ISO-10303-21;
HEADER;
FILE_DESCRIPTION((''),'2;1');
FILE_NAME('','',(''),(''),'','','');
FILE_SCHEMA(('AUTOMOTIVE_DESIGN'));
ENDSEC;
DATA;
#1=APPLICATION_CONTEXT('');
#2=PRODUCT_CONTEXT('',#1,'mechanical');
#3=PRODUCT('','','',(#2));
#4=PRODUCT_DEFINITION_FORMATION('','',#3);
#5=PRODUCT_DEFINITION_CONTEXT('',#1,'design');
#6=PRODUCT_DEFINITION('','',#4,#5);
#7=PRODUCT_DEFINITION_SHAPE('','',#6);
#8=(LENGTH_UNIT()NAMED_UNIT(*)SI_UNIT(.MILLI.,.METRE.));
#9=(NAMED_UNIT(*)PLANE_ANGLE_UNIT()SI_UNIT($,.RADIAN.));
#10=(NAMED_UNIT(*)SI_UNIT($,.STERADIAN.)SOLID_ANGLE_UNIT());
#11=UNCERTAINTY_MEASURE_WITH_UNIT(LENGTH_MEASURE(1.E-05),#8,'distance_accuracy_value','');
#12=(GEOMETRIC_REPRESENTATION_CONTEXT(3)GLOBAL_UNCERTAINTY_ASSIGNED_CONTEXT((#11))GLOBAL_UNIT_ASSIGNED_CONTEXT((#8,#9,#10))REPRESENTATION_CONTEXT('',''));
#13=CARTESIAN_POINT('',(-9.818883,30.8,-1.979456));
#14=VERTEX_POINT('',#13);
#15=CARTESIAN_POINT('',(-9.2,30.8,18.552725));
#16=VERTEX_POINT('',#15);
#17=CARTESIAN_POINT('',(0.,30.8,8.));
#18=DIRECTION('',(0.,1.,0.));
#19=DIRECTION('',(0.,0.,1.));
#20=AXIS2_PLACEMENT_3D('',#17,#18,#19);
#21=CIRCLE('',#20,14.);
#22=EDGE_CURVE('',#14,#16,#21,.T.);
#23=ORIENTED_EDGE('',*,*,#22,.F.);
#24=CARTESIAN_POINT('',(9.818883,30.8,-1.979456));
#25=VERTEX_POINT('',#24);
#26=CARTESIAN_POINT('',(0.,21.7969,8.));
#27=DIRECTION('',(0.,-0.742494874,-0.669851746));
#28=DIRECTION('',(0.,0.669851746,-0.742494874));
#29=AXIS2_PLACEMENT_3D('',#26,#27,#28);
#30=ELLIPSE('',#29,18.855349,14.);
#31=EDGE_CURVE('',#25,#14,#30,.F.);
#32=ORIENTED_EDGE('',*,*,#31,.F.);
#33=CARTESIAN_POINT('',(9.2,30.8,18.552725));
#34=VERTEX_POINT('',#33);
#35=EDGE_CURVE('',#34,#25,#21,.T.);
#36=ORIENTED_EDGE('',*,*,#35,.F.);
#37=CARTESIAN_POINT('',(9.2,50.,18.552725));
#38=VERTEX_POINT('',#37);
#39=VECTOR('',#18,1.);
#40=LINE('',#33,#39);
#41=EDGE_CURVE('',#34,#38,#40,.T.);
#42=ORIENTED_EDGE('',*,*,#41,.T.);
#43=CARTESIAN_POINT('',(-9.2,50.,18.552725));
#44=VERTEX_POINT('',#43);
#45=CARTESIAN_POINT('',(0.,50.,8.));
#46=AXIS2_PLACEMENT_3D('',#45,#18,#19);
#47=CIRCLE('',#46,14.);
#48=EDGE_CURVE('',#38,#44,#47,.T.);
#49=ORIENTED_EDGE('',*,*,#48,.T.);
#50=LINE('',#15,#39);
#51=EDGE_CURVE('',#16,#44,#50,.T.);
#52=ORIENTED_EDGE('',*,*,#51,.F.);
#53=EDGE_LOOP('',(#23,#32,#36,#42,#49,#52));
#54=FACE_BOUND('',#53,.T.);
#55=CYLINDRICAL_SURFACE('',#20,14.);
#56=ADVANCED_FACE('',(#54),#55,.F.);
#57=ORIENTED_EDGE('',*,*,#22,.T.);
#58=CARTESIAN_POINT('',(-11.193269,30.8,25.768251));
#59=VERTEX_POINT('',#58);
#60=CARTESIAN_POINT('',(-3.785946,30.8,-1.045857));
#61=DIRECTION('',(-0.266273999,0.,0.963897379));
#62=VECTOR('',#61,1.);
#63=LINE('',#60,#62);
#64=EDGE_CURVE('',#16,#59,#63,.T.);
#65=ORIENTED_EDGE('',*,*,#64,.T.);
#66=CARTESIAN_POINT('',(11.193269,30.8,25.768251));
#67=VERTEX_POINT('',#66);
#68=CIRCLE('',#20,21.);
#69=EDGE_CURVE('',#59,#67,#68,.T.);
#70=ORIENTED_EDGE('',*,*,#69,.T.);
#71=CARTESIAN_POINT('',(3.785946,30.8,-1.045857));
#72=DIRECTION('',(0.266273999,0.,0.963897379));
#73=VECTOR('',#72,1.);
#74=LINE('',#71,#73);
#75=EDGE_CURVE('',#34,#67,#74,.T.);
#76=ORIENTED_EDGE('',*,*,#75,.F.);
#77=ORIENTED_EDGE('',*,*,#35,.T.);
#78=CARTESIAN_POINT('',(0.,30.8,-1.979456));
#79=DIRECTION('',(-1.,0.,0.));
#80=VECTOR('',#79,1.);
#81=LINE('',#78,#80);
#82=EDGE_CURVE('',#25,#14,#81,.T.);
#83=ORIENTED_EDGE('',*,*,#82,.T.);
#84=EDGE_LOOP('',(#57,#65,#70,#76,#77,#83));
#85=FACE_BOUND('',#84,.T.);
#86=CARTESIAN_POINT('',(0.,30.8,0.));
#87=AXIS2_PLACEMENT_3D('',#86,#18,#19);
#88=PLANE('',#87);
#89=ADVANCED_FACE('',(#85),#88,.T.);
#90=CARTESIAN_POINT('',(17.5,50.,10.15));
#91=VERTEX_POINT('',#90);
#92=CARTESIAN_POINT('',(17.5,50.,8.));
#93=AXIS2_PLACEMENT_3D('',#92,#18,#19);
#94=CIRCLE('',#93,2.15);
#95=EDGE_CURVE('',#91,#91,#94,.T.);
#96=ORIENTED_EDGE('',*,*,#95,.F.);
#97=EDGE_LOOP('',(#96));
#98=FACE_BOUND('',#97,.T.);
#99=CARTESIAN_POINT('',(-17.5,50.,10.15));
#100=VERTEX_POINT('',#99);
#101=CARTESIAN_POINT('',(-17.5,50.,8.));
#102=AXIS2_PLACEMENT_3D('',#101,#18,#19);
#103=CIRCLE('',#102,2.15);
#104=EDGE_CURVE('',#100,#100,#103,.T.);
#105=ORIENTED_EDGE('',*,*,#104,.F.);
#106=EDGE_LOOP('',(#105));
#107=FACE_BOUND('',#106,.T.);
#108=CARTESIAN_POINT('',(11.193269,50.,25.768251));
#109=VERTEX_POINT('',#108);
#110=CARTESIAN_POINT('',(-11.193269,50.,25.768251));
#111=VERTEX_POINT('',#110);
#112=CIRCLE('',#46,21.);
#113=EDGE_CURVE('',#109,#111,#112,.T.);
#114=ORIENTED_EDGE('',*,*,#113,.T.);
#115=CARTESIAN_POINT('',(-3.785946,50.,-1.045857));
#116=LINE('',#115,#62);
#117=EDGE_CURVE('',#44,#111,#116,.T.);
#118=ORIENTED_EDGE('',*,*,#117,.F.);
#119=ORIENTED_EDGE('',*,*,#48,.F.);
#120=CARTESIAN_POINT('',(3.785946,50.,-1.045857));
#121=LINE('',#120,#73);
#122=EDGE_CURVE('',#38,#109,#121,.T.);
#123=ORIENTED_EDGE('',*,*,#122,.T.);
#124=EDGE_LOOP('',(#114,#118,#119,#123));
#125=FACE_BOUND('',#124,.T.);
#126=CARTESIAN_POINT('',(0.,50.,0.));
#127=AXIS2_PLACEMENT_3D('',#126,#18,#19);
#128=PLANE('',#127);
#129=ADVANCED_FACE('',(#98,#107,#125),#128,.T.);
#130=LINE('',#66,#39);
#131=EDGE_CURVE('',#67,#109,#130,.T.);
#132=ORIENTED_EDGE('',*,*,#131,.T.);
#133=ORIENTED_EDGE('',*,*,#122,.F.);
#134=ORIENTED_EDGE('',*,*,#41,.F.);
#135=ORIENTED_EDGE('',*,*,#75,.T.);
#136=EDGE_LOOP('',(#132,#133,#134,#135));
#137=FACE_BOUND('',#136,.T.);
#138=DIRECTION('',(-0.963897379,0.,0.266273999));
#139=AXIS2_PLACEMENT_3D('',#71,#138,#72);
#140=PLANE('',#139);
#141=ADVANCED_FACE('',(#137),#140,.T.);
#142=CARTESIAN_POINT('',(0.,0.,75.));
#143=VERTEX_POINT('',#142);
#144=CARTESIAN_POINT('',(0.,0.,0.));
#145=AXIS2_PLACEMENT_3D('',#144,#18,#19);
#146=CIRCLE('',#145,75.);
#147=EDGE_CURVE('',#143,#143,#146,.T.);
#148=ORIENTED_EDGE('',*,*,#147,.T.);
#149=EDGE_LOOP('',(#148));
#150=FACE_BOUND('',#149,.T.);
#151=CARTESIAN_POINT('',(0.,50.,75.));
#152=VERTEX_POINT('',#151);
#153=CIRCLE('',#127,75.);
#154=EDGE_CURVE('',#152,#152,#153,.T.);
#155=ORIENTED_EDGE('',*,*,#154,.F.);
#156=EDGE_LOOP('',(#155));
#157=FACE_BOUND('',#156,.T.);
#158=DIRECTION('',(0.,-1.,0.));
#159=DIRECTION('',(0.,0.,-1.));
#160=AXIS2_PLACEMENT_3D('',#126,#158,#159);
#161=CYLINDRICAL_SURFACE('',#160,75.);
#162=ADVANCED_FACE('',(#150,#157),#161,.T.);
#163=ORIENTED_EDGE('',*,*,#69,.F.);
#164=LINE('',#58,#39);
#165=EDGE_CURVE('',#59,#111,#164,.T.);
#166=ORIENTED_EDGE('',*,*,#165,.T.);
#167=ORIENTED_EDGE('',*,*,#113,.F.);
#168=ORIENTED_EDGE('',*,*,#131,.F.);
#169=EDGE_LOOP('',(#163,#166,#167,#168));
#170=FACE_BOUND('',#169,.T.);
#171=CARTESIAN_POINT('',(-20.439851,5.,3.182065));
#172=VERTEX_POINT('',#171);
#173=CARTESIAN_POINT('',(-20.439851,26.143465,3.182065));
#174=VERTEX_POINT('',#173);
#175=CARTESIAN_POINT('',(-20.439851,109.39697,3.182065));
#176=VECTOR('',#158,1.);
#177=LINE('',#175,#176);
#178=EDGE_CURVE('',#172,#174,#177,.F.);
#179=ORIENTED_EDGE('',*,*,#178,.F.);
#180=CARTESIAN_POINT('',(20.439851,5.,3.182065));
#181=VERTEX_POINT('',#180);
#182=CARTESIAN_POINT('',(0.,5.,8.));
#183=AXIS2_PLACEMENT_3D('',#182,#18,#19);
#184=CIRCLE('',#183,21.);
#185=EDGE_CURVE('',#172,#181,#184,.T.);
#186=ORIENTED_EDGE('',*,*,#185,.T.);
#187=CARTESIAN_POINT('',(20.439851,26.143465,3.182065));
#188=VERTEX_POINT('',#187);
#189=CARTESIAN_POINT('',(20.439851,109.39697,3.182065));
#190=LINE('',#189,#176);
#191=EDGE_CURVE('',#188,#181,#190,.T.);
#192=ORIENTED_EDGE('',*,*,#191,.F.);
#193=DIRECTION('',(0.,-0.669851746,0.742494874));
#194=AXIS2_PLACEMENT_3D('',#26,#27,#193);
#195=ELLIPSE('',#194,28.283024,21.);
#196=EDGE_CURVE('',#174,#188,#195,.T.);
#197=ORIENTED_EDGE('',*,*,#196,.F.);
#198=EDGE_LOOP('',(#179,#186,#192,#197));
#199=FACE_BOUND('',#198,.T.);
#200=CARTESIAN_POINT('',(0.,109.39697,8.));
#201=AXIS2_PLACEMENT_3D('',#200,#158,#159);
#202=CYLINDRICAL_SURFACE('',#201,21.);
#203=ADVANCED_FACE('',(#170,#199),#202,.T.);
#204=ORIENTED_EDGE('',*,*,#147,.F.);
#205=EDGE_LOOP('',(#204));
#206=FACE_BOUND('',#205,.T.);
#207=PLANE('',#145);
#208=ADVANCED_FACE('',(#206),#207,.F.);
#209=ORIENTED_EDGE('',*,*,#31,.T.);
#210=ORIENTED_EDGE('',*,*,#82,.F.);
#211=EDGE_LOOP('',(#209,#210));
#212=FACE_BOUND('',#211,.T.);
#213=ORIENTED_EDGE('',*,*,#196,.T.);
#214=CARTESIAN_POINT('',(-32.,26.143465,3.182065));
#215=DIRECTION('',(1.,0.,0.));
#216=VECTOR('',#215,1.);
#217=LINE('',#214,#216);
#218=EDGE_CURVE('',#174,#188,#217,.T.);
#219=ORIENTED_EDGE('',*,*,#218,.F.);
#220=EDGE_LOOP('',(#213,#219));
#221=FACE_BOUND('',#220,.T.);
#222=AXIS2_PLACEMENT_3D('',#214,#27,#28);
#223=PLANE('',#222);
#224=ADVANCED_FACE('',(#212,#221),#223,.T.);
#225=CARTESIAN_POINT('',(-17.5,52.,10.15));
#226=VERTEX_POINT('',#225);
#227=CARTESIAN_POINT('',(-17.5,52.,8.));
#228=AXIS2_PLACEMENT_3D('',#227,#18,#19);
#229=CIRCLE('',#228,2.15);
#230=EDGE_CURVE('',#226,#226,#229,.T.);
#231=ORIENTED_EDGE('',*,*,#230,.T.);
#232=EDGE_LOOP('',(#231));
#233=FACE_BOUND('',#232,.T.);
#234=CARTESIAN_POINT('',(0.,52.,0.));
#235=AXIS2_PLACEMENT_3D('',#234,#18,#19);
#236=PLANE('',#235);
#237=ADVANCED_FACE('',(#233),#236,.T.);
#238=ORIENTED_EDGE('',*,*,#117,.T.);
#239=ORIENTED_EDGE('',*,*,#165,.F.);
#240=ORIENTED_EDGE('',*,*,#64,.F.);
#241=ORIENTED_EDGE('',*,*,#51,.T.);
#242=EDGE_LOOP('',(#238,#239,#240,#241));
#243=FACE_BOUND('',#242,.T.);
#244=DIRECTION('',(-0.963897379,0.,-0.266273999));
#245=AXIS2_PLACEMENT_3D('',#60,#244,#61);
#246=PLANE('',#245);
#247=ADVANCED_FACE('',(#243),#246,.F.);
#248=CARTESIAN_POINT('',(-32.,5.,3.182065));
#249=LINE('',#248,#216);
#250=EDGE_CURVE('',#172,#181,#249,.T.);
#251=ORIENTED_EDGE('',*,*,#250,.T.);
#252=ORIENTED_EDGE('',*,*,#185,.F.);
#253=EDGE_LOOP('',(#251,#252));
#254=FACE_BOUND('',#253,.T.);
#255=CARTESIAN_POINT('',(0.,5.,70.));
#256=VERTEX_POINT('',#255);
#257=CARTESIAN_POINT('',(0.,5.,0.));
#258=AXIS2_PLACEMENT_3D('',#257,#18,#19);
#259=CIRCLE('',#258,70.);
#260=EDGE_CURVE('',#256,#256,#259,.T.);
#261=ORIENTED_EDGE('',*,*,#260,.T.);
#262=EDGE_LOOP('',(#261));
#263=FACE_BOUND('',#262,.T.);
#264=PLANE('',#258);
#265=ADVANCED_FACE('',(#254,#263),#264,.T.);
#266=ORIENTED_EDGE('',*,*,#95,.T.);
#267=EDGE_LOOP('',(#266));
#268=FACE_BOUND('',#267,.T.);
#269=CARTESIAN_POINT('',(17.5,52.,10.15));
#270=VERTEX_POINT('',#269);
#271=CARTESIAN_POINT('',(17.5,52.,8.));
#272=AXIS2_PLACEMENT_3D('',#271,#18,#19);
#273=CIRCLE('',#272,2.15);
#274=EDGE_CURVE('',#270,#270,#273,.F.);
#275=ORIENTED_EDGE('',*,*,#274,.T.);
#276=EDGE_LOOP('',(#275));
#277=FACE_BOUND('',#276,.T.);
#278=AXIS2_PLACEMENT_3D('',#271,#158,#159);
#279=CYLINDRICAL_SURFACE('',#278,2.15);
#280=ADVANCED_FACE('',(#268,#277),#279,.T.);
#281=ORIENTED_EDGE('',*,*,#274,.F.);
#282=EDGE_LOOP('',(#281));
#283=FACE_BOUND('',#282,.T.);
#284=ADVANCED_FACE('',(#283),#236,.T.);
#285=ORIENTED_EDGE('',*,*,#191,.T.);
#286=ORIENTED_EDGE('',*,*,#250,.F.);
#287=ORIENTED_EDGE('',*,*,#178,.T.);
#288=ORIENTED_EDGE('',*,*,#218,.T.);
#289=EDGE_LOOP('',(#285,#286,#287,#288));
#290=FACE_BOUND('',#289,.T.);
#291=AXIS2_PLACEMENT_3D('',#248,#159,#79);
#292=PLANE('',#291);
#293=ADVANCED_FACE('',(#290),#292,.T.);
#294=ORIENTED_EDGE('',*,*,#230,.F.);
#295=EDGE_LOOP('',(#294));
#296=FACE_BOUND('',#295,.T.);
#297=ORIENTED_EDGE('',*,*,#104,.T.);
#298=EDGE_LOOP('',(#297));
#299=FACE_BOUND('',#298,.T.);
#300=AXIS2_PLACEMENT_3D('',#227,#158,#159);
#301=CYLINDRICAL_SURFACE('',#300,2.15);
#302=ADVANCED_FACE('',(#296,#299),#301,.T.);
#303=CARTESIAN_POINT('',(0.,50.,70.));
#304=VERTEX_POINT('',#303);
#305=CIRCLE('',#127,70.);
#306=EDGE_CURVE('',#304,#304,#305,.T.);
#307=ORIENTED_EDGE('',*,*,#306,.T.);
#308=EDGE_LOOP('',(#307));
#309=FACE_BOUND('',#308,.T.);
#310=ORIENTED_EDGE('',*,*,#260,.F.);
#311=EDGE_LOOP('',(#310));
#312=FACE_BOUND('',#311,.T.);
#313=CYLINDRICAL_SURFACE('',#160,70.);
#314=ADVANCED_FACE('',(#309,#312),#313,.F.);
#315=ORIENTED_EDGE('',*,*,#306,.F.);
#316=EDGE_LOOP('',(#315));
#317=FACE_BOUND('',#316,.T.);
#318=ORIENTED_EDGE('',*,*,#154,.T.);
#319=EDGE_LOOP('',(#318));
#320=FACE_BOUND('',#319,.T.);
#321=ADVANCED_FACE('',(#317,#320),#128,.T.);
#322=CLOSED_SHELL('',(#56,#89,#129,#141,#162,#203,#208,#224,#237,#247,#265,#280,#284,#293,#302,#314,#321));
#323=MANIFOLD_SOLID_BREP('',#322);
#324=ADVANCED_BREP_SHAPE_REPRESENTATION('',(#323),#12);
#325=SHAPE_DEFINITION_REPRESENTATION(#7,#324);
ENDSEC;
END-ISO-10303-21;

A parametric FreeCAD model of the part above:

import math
import FreeCAD as App
import Part
import Sketcher
from FreeCAD import Vector
Q = App.Units.Quantity


def faces_at(feature, points):
    """Names of the faces that lie closest to the given points."""
    faces = feature.Shape.Faces
    near = lambda p: min(range(len(faces)), key=lambda i: faces[i].distToShape(Part.Vertex(*p))[0])
    return sorted({f"Face{near(p) + 1}" for p in points})

doc = App.newDocument("Part")
body = doc.addObject("PartDesign::Body", "Body")

# Sketch on XZ plane
sketch1 = body.newObject("Sketcher::SketchObject", "Sketch")
sketch1.AttachmentSupport = (doc.getObject("XZ_Plane"), [""])
sketch1.MapMode = "FlatFace"
sketch1.addGeometry(Part.Circle(Vector(0, 0, 0), Vector(0, 0, 1), 75), False)
sketch1.addConstraint([
    Sketcher.Constraint("Coincident", 0, 3, -1, 1),
    Sketcher.Constraint("Diameter", 0, Q("150 mm")),
])
pad1 = body.newObject("PartDesign::Pad", "Pad")
pad1.Profile = sketch1
pad1.Length = 50
pad1.Reversed = True
doc.recompute()

thickness = body.newObject("PartDesign::Thickness", "Thickness")
thickness.Base = (pad1, faces_at(pad1, [(0, 50, 0)]))
thickness.Value = 5
thickness.Reversed = True
thickness.Join = "Intersection"

# Sketch on XZ plane
sketch2 = body.newObject("Sketcher::SketchObject", "Sketch001")
sketch2.AttachmentSupport = (doc.getObject("XZ_Plane"), [""])
sketch2.MapMode = "FlatFace"
sketch2.AttachmentOffset = App.Placement(Vector(0, 0, -5), App.Rotation())
sketch2.addGeometry(Part.Circle(Vector(0, 8, 0), Vector(0, 0, 1), 21), False)
sketch2.addConstraint([
    Sketcher.Constraint("PointOnObject", 0, 3, -2),
    Sketcher.Constraint("Diameter", 0, Q("42 mm")),
    Sketcher.Constraint("DistanceY", -1, 1, 0, 3, Q("8 mm")),
])
pad2 = body.newObject("PartDesign::Pad", "Pad001")
pad2.Profile = sketch2
pad2.Length = 45
pad2.Reversed = True

# Sketch on XZ plane
sketch3 = body.newObject("Sketcher::SketchObject", "Sketch002")
sketch3.AttachmentSupport = (doc.getObject("XZ_Plane"), [""])
sketch3.MapMode = "FlatFace"
sketch3.AttachmentOffset = App.Placement(Vector(0, 0, -30.8), App.Rotation())
sketch3.addGeometry([
    Part.LineSegment(Vector(11, 26, 0), Vector(9, 19, 0)),
    Part.ArcOfCircle(Part.Circle(Vector(0, 8, 0), Vector(0, 0, 1), 14), math.radians(131), math.radians(409)),
    Part.LineSegment(Vector(-9, 19, 0), Vector(-11, 26, 0)),
    Part.ArcOfCircle(Part.Circle(Vector(0, 8, 0), Vector(0, 0, 1), 21), math.radians(58), math.radians(122)),
], False)
sketch3.addConstraint([
    Sketcher.Constraint("Coincident", 0, 2, 1, 2),
    Sketcher.Constraint("Coincident", 1, 1, 2, 1),
    Sketcher.Constraint("Coincident", 2, 2, 3, 2),
    Sketcher.Constraint("Coincident", 3, 1, 0, 1),
    Sketcher.Constraint("Coincident", 3, 3, 1, 3),
    Sketcher.Constraint("Symmetric", 0, 2, 1, 1, -2),
    Sketcher.Constraint("Horizontal", 2, 2, 3, 1),
    Sketcher.Constraint("Radius", 1, Q("14 mm")),
    Sketcher.Constraint("Radius", 3, Q("21 mm")),
    Sketcher.Constraint("DistanceY", -1, 1, 1, 3, Q("8 mm")),
    Sketcher.Constraint("DistanceX", -1, 1, 0, 2, Q("9.2 mm")),
    Sketcher.Constraint("DistanceX", 2, 2, -1, 1, Q("11.193269 mm")),
])
pocket1 = body.newObject("PartDesign::Pocket", "Pocket")
pocket1.Profile = sketch3
pocket1.Length = 19.2

# Sketch on XZ plane
sketch4 = body.newObject("Sketcher::SketchObject", "Sketch003")
sketch4.AttachmentSupport = (doc.getObject("XZ_Plane"), [""])
sketch4.MapMode = "FlatFace"
sketch4.AttachmentOffset = App.Placement(Vector(0, 0, -50), App.Rotation())
sketch4.addGeometry([
    Part.Circle(Vector(-17.5, 8, 0), Vector(0, 0, 1), 2.1),
    Part.Circle(Vector(17.5, 8, 0), Vector(0, 0, 1), 2.1),
], False)
sketch4.addConstraint([
    Sketcher.Constraint("Equal", 0, 1),
    Sketcher.Constraint("Symmetric", 0, 3, 1, 3, -2),
    Sketcher.Constraint("Diameter", 0, Q("4.3 mm")),
    Sketcher.Constraint("DistanceY", -1, 1, 0, 3, Q("8 mm")),
    Sketcher.Constraint("DistanceX", 0, 3, 1, 3, Q("35 mm")),
])
pad3 = body.newObject("PartDesign::Pad", "Pad002")
pad3.Profile = sketch4
pad3.Length = 2
pad3.Reversed = True

# Sketch on YZ plane
sketch5 = body.newObject("Sketcher::SketchObject", "Sketch004")
sketch5.AttachmentSupport = (doc.getObject("YZ_Plane"), [""])
sketch5.MapMode = "FlatFace"
sketch5.addGeometry([
    Part.LineSegment(Vector(5, -16.4, 0), Vector(5, 3.2, 0)),  # 0
    Part.LineSegment(Vector(5, 3.2, 0), Vector(26.1, 3.2, 0)),  # 1
    Part.LineSegment(Vector(26.1, 3.2, 0), Vector(40.7, -13, 0)),  # 2
    Part.LineSegment(Vector(40.7, -13, 0), Vector(40.7, -16.4, 0)),  # 3
    Part.LineSegment(Vector(40.7, -16.4, 0), Vector(5, -16.4, 0)),  # 4
], False)
sketch5.addConstraint([
    Sketcher.Constraint("Coincident", 0, 2, 1, 1),
    Sketcher.Constraint("Coincident", 1, 2, 2, 1),
    Sketcher.Constraint("Coincident", 2, 2, 3, 1),
    Sketcher.Constraint("Coincident", 3, 2, 4, 1),
    Sketcher.Constraint("Coincident", 4, 2, 0, 1),
    Sketcher.Constraint("Vertical", 0),
    Sketcher.Constraint("Horizontal", 1),
    Sketcher.Constraint("Vertical", 3),
    Sketcher.Constraint("Horizontal", 4),
    Sketcher.Constraint("DistanceX", -1, 1, 0, 2, Q("5 mm")),
    Sketcher.Constraint("DistanceY", 2, 2, -1, 1, Q("13 mm")),
    Sketcher.Constraint("DistanceY", 0, 1, 0, 2, Q("19.590739 mm")),
    Sketcher.Constraint("DistanceX", 1, 1, 1, 2, Q("21.143465 mm")),
    Sketcher.Constraint("DistanceX", 4, 2, 4, 1, Q("35.742332 mm")),
    Sketcher.Constraint("DistanceY", 3, 2, 3, 1, Q("3.408674 mm")),
])
pocket2 = body.newObject("PartDesign::Pocket", "Pocket001")
pocket2.Profile = sketch5
pocket2.Type = "TwoLengths"
pocket2.Length = 32
pocket2.Length2 = 27

doc.recompute()
